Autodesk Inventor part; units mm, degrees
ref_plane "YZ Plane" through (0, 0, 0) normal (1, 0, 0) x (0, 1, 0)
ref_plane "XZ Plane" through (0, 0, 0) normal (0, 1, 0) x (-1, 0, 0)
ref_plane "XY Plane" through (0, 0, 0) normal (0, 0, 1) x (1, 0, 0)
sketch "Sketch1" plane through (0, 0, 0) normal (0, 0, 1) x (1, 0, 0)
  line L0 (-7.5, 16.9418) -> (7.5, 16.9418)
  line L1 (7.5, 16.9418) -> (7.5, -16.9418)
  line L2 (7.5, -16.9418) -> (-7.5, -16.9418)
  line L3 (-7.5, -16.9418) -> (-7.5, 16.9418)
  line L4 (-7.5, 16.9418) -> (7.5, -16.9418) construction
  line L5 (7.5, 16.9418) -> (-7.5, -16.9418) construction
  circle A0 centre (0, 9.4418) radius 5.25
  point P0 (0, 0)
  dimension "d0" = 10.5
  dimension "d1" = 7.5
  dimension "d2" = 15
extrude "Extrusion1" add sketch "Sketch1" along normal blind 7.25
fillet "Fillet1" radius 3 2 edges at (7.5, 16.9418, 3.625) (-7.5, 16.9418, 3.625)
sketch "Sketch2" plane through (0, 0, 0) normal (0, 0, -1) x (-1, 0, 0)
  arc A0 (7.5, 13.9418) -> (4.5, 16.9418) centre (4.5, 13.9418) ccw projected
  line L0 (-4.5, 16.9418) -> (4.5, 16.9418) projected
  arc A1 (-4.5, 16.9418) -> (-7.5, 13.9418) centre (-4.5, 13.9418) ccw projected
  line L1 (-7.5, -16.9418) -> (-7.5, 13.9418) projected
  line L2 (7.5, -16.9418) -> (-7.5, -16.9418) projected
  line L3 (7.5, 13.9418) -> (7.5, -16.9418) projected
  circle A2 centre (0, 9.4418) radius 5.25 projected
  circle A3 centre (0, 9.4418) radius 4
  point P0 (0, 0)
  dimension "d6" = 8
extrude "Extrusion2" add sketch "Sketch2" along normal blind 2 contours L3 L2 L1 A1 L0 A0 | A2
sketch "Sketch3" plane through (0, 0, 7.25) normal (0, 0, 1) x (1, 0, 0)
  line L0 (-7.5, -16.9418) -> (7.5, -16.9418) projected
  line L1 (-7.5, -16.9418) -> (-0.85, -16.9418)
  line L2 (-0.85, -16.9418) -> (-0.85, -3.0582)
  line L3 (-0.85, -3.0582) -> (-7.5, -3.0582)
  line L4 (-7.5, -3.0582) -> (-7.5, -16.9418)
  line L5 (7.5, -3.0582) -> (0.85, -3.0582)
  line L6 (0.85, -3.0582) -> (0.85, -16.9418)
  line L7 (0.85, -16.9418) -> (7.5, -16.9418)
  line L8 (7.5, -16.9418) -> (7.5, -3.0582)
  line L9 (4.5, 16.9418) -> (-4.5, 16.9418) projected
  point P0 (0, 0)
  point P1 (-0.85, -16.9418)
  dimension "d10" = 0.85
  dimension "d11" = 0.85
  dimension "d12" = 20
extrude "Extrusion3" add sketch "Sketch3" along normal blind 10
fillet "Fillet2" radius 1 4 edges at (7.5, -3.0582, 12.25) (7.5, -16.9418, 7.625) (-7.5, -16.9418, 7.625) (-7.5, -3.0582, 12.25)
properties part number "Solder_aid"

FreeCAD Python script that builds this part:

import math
import FreeCAD as App
import Part
import Sketcher
from FreeCAD import Vector


def edges_at(feature, points):
    """Names of the edges that pass closest to the given points."""
    edges = feature.Shape.Edges
    near = lambda p: min(range(len(edges)), key=lambda i: edges[i].distToShape(Part.Vertex(*p))[0])
    return sorted({f"Edge{near(p) + 1}" for p in points})


def add_polygon(sketch, points):
    """Adds a closed chain of lines whose ends are joined by coincident constraints."""
    first, n = sketch.GeometryCount, len(points)
    for a, b in zip(points, points[1:] + points[:1]):
        sketch.addGeometry(Part.LineSegment(App.Vector(*a, 0), App.Vector(*b, 0)), False)
    for i in range(n):
        sketch.addConstraint(Sketcher.Constraint("Coincident", first + i, 2, first + (i + 1) % n, 1))

doc = App.newDocument("Part")
body = doc.addObject("PartDesign::Body", "Body")

# Sketch on XY plane
sketch1 = body.newObject("Sketcher::SketchObject", "Sketch")
sketch1.AttachmentSupport = (doc.getObject("XY_Plane"), [""])
sketch1.MapMode = "FlatFace"
add_polygon(sketch1, [(8, 17), (-8, 17), (-8, -17), (8, -17)])  # lines 0-3
sketch1.addGeometry(Part.Circle(Vector(0, 9, 0), Vector(0, 0, 1), 5), False)  # 4
sketch1.addConstraint([
    Sketcher.Constraint("Horizontal", 0),
    Sketcher.Constraint("Vertical", 1),
    Sketcher.Constraint("Horizontal", 2),
    Sketcher.Constraint("Vertical", 3),
    Sketcher.Constraint("Symmetric", 0, 2, 2, 2, -1, 1),
    Sketcher.Constraint("PointOnObject", 4, 3, -2),
    Sketcher.Constraint("Diameter", 4, 10.5),
    Sketcher.Constraint("DistanceX", 0, 2, 0, 1, 15.0),
    Sketcher.Constraint("DistanceY", 4, 3, 0, 2, 7.5),
    Sketcher.Constraint("DistanceY", 1, 2, 1, 1, 33.8836),
])
pad1 = body.newObject("PartDesign::Pad", "Pad")
pad1.Profile = sketch1
pad1.Length = 7.25
doc.recompute()

fillet = body.newObject("PartDesign::Fillet", "Fillet")
fillet.Base = (pad1, edges_at(pad1, [(7.5, 16.942, 3.625), (-7.5, 16.942, 3.625)]))
fillet.Radius = 3

# Sketch on XY plane
sketch2 = body.newObject("Sketcher::SketchObject", "Sketch001")
sketch2.AttachmentSupport = (doc.getObject("XY_Plane"), [""])
sketch2.MapMode = "FlatFace"
sketch2.addGeometry([
    Part.LineSegment(Vector(-7.5, -16.9, 0), Vector(-7.5, 13.9, 0)),  # 0
    Part.ArcOfCircle(Part.Circle(Vector(-4.5, 13.9, 0), Vector(0, 0, 1), 3), math.radians(90), math.radians(180)),  # 1
    Part.LineSegment(Vector(-4.5, 16.9, 0), Vector(4.5, 16.9, 0)),  # 2
    Part.ArcOfCircle(Part.Circle(Vector(4.5, 13.9, 0), Vector(0, 0, 1), 3), math.radians(0), math.radians(90)),  # 3
    Part.LineSegment(Vector(7.5, 13.9, 0), Vector(7.5, -16.9, 0)),  # 4
    Part.LineSegment(Vector(7.5, -16.9, 0), Vector(-7.5, -16.9, 0)),  # 5
    Part.Circle(Vector(0, 9.4, 0), Vector(0, 0, 1), 4),  # 6
], False)
sketch2.addConstraint([
    Sketcher.Constraint("Tangent", 0, 2, 1, 2),
    Sketcher.Constraint("Tangent", 1, 1, 2, 1),
    Sketcher.Constraint("Tangent", 2, 2, 3, 2),
    Sketcher.Constraint("Tangent", 3, 1, 4, 1),
    Sketcher.Constraint("Coincident", 4, 2, 5, 1),
    Sketcher.Constraint("Coincident", 5, 2, 0, 1),
    Sketcher.Constraint("Vertical", 0),
    Sketcher.Constraint("Horizontal", 2),
    Sketcher.Constraint("Vertical", 4),
    Sketcher.Constraint("Horizontal", 5),
    Sketcher.Constraint("Equal", 1, 3),
    Sketcher.Constraint("PointOnObject", 6, 3, -2),
    Sketcher.Constraint("Diameter", 6, 8.0),
    Sketcher.Constraint("Radius", 1, 3.0),
    Sketcher.Constraint("DistanceX", 2, 1, 2, 2, 9.0),
    Sketcher.Constraint("DistanceX", 1, 3, -1, 1, 4.5),
    Sketcher.Constraint("DistanceY", 6, 3, 1, 3, 4.5),
    Sketcher.Constraint("DistanceY", 0, 1, 0, 2, 30.8836),
    Sketcher.Constraint("DistanceY", -1, 1, 1, 3, 13.9418),
])
pad2 = body.newObject("PartDesign::Pad", "Pad001")
pad2.Profile = sketch2
pad2.Length = 2
pad2.Reversed = True

# Sketch on XY plane
sketch3 = body.newObject("Sketcher::SketchObject", "Sketch002")
sketch3.AttachmentSupport = (doc.getObject("XY_Plane"), [""])
sketch3.MapMode = "FlatFace"
sketch3.AttachmentOffset = App.Placement(Vector(0, 0, 7.25), App.Rotation())
add_polygon(sketch3, [(-8, -3), (-8, -17), (-1, -17), (-1, -3)])  # lines 0-3
add_polygon(sketch3, [(1, -3), (1, -17), (8, -17), (8, -3)])  # lines 4-7
sketch3.addConstraint([
    Sketcher.Constraint("Vertical", 0),
    Sketcher.Constraint("Horizontal", 1),
    Sketcher.Constraint("Vertical", 2),
    Sketcher.Constraint("Horizontal", 3),
    Sketcher.Constraint("Vertical", 4),
    Sketcher.Constraint("Horizontal", 5),
    Sketcher.Constraint("Vertical", 6),
    Sketcher.Constraint("Horizontal", 7),
    Sketcher.Constraint("Symmetric", 1, 2, 4, 2, -2),
    Sketcher.Constraint("Symmetric", 3, 2, 6, 2, -2),
    Sketcher.Constraint("DistanceX", 1, 2, -1, 1, 0.85),
    Sketcher.Constraint("DistanceX", 0, 2, 5, 2, 15.0),
    Sketcher.Constraint("DistanceY", 0, 2, 0, 1, 13.8836),
    Sketcher.Constraint("DistanceY", 0, 2, -1, 1, 16.9418),
])
pad3 = body.newObject("PartDesign::Pad", "Pad002")
pad3.Profile = sketch3
pad3.Length = 10
doc.recompute()

fillet2 = body.newObject("PartDesign::Fillet", "Fillet001")
fillet2.Base = (pad3, edges_at(pad3, [
    (7.5, -3.058, 12.25),
    (7.5, -16.942, 7.625),
    (-7.5, -16.942, 7.625),
    (-7.5, -3.058, 12.25),
]))
fillet2.Radius = 1

doc.recompute()
